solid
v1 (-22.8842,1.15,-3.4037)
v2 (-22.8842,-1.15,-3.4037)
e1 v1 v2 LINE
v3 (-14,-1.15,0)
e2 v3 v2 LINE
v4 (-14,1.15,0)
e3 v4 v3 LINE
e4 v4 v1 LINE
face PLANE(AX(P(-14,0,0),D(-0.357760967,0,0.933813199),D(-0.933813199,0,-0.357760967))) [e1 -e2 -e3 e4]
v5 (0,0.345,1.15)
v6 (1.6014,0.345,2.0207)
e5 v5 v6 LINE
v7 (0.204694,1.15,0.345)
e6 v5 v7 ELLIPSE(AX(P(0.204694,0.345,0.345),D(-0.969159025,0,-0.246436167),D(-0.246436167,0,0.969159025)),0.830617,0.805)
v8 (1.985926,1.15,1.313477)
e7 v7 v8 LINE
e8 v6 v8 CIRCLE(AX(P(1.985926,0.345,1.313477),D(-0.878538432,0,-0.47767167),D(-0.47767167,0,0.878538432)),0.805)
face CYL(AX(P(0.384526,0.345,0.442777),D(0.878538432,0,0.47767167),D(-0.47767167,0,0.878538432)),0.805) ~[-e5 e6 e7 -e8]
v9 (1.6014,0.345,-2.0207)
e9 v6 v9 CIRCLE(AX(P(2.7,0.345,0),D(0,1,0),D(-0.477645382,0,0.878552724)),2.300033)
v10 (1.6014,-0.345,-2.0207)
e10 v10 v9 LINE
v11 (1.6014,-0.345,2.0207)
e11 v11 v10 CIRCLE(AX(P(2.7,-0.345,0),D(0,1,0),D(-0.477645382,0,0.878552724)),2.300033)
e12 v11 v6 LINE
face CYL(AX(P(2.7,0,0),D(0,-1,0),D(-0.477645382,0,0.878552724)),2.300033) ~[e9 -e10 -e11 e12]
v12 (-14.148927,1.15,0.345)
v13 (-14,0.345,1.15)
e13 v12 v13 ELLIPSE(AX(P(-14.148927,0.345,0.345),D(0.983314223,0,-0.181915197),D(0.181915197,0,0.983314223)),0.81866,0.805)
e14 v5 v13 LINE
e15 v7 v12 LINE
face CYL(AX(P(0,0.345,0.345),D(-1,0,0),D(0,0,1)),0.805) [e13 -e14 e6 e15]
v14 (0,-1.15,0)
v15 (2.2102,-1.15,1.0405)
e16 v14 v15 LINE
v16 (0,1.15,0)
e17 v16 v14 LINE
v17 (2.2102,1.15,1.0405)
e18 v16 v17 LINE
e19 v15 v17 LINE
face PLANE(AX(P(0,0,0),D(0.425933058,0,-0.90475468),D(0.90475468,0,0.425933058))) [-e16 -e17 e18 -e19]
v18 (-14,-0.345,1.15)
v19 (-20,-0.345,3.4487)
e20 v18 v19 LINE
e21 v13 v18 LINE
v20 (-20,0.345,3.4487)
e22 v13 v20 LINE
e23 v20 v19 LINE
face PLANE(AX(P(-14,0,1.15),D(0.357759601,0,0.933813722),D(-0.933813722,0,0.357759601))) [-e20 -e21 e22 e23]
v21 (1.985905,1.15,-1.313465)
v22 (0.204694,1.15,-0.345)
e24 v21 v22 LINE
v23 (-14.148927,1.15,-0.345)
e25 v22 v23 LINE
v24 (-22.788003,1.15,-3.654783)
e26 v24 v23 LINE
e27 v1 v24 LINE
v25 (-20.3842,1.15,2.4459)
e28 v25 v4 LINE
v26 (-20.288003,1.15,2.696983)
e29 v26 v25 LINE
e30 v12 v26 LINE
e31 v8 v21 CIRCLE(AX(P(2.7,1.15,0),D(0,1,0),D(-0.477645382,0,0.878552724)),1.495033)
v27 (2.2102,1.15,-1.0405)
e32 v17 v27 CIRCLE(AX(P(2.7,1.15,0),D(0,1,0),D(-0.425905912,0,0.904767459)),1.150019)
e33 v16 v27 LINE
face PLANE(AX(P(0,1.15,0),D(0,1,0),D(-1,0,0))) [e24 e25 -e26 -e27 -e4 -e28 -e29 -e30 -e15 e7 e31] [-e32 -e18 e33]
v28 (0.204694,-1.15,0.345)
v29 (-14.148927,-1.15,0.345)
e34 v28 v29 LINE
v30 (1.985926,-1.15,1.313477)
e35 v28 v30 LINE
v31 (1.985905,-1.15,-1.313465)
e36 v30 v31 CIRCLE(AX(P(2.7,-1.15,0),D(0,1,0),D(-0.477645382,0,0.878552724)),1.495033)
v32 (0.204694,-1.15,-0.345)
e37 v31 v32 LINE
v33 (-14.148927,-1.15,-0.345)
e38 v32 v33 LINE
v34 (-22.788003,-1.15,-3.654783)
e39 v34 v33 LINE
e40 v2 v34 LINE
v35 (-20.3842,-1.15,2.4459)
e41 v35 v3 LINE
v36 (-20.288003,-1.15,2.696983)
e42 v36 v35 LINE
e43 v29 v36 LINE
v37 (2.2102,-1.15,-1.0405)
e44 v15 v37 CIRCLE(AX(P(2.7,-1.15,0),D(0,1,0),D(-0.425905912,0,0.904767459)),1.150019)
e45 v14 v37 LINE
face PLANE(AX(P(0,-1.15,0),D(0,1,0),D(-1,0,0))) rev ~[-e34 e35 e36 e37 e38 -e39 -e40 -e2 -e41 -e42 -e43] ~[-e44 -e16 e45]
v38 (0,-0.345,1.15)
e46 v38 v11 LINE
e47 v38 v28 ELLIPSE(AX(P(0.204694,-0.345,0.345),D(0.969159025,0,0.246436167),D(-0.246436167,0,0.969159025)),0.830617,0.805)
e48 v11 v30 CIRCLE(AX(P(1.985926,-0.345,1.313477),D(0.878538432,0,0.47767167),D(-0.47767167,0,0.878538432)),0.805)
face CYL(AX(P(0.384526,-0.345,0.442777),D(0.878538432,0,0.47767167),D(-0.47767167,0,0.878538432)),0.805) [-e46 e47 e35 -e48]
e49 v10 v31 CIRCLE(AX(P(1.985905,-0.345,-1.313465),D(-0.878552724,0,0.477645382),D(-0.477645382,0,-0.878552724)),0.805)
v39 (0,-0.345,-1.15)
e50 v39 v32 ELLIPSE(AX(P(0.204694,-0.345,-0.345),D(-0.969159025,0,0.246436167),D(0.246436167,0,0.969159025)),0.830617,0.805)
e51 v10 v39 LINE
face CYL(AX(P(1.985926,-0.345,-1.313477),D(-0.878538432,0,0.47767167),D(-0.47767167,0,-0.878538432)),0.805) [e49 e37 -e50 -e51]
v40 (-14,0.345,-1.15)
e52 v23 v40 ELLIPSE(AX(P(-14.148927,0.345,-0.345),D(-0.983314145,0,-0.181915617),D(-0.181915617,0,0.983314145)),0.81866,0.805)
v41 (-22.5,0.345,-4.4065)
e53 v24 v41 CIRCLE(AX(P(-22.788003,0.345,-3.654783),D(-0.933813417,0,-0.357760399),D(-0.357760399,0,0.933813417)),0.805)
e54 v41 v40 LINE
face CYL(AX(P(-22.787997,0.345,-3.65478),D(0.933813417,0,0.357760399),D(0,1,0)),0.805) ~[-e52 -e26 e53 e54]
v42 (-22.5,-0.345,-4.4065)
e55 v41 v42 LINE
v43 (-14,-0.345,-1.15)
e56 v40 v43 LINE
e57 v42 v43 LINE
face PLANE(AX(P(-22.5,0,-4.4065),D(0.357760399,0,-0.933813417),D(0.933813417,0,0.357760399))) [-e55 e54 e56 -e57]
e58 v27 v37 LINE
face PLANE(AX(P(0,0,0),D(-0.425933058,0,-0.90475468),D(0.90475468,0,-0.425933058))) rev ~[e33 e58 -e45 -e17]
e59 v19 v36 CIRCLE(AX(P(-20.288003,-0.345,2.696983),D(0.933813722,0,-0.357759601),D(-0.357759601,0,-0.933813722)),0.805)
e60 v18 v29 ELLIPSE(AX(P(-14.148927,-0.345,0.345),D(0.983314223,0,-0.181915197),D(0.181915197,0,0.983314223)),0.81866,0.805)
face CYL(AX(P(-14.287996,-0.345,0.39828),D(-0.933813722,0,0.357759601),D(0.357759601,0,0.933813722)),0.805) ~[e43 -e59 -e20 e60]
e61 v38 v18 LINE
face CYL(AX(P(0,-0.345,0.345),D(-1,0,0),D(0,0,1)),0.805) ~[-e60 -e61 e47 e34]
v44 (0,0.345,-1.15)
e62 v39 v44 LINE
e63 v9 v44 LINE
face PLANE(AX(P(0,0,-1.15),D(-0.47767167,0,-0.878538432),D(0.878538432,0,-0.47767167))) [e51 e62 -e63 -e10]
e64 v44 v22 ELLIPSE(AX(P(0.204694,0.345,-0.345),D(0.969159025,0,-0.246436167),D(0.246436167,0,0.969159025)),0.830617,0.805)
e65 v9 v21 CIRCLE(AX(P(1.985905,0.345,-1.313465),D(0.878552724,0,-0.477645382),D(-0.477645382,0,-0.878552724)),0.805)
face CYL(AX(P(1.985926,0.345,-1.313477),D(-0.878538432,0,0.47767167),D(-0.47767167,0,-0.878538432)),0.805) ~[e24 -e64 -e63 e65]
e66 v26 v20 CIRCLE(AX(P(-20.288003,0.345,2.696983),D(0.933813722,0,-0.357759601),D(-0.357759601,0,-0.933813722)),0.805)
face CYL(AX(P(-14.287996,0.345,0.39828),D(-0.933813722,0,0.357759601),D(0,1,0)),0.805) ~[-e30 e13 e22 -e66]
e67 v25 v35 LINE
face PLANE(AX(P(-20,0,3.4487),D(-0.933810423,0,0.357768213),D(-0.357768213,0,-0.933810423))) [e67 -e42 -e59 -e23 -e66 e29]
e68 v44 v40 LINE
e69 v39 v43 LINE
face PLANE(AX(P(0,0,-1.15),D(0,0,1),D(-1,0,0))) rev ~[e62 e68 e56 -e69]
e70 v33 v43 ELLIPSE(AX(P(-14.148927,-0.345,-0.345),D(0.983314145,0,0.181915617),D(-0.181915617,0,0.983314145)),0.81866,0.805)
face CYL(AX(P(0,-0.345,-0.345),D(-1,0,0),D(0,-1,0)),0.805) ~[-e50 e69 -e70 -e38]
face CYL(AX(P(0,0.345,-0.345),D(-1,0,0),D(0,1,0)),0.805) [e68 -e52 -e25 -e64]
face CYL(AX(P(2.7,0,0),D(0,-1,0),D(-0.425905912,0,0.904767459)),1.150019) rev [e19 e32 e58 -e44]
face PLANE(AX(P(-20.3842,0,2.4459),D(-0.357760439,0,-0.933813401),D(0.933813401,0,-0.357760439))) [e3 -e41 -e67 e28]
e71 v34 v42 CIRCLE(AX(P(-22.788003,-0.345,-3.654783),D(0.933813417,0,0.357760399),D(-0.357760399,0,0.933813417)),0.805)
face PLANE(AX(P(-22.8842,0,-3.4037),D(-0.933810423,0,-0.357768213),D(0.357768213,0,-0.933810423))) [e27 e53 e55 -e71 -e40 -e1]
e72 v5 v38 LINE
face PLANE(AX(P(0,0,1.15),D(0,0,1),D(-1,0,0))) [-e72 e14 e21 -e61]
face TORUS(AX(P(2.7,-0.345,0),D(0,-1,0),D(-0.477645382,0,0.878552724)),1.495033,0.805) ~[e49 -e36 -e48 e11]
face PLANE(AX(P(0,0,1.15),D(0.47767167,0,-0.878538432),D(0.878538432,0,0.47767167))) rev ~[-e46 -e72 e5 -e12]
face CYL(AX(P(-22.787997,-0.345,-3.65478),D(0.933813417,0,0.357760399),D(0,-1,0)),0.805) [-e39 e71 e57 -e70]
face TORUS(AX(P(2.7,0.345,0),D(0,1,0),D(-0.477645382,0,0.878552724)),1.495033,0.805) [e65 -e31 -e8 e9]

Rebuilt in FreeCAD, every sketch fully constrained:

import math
import FreeCAD as App
import Part
import Sketcher
from FreeCAD import Vector
Q = App.Units.Quantity


def edges_at(feature, points):
    """Names of the edges that pass closest to the given points."""
    edges = feature.Shape.Edges
    near = lambda p: min(range(len(edges)), key=lambda i: edges[i].distToShape(Part.Vertex(*p))[0])
    return sorted({f"Edge{near(p) + 1}" for p in points})

doc = App.newDocument("Part")
body = doc.addObject("PartDesign::Body", "Body")

# Sketch on XZ plane
sketch1 = body.newObject("Sketcher::SketchObject", "Sketch")
sketch1.AttachmentSupport = (doc.getObject("XZ_Plane"), [""])
sketch1.MapMode = "FlatFace"
sketch1.addGeometry([
    Part.LineSegment(Vector(0, 1.1, 0), Vector(1.6, 2, 0)),  # 0
    Part.ArcOfCircle(Part.Circle(Vector(2.7, 0, 0), Vector(0, 0, 1), 2.3), math.radians(-119), math.radians(119)),  # 1
    Part.LineSegment(Vector(1.6, -2, 0), Vector(0, -1.1, 0)),  # 2
    Part.LineSegment(Vector(0, -1.1, 0), Vector(-14, -1.1, 0)),  # 3
    Part.LineSegment(Vector(-14, -1.1, 0), Vector(-22.5, -4.4, 0)),  # 4
    Part.LineSegment(Vector(-22.5, -4.4, 0), Vector(-22.9, -3.4, 0)),  # 5
    Part.LineSegment(Vector(-22.9, -3.4, 0), Vector(-14, 0, 0)),  # 6
    Part.LineSegment(Vector(-14, 0, 0), Vector(-20.4, 2.4, 0)),  # 7
    Part.LineSegment(Vector(-20.4, 2.4, 0), Vector(-20, 3.4, 0)),  # 8
    Part.LineSegment(Vector(-20, 3.4, 0), Vector(-14, 1.1, 0)),  # 9
    Part.LineSegment(Vector(-14, 1.1, 0), Vector(0, 1.1, 0)),  # 10
    Part.ArcOfCircle(Part.Circle(Vector(2.7, 0, 0), Vector(0, 0, 1), 1.2), math.radians(-115), math.radians(115)),  # 11
    Part.LineSegment(Vector(2.2, 1, 0), Vector(0, 0, 0)),  # 12
    Part.LineSegment(Vector(0, 0, 0), Vector(2.2, -1, 0)),  # 13
], False)
sketch1.addConstraint([
    Sketcher.Constraint("Tangent", 0, 2, 1, 2),
    Sketcher.Constraint("Tangent", 1, 1, 2, 1),
    Sketcher.Constraint("Coincident", 2, 2, 3, 1),
    Sketcher.Constraint("Coincident", 3, 2, 4, 1),
    Sketcher.Constraint("Coincident", 4, 2, 5, 1),
    Sketcher.Constraint("Coincident", 5, 2, 6, 1),
    Sketcher.Constraint("Coincident", 6, 2, 7, 1),
    Sketcher.Constraint("Coincident", 7, 2, 8, 1),
    Sketcher.Constraint("Coincident", 8, 2, 9, 1),
    Sketcher.Constraint("Coincident", 9, 2, 10, 1),
    Sketcher.Constraint("Coincident", 10, 2, 0, 1),
    Sketcher.Constraint("Tangent", 11, 2, 12, 1),
    Sketcher.Constraint("Coincident", 12, 2, 13, 1),
    Sketcher.Constraint("Tangent", 13, 2, 11, 1),
    Sketcher.Constraint("Horizontal", 3),
    Sketcher.Constraint("Horizontal", 10),
    Sketcher.Constraint("Coincident", 12, 2, -1, 1),
    Sketcher.Constraint("Coincident", 11, 3, 1, 3),
    Sketcher.Constraint("Symmetric", 2, 2, 10, 2, -1, 1),
    Sketcher.Constraint("Symmetric", 0, 2, 1, 1, -1),
    Sketcher.Constraint("PointOnObject", 6, 2, -1),
    Sketcher.Constraint("Perpendicular", 4, 5),
    Sketcher.Constraint("Perpendicular", 5, 6),
    Sketcher.Constraint("Perpendicular", 7, 8),
    Sketcher.Constraint("Perpendicular", 8, 9),
    Sketcher.Constraint("Vertical", 3, 2, 6, 2),
    Sketcher.Constraint("Vertical", 6, 2, 9, 2),
    Sketcher.Constraint("Equal", 5, 8),
    Sketcher.Constraint("Radius", 1, Q("2.3 mm")),
    Sketcher.Constraint("DistanceX", 3, 2, 3, 1, Q("14 mm")),
    Sketcher.Constraint("Radius", 11, Q("1.15 mm")),
    Sketcher.Constraint("DistanceX", 8, 2, -1, 1, Q("20 mm")),
    Sketcher.Constraint("DistanceX", -1, 1, 1, 3, Q("2.7 mm")),
    Sketcher.Constraint("DistanceX", 5, 2, 7, 2, Q("2.5 mm")),
    Sketcher.Constraint("DistanceY", 3, 2, 9, 2, Q("2.3 mm")),
    Sketcher.Constraint("Distance", 6, Q("9.514 mm")),
])
pad1 = body.newObject("PartDesign::Pad", "Pad")
pad1.Profile = sketch1
pad1.Length = 2.3
pad1.Midplane = True
doc.recompute()

fillet = body.newObject("PartDesign::Fillet", "Fillet")
fillet.Base = (pad1, edges_at(pad1, [
    (-17, -1.15, 2.299),
    (-17, 1.15, 2.299),
    (-7, -1.15, 1.15),
    (-7, 1.15, 1.15),
    (5, -1.15, 0),
    (0.801, -1.15, -1.585),
    (0.801, -1.15, 1.585),
    (5, 1.15, 0),
    (0.801, 1.15, 1.585),
    (0.801, 1.15, -1.585),
    (-7, -1.15, -1.15),
    (-18.25, -1.15, -2.778),
    (-7, 1.15, -1.15),
    (-18.25, 1.15, -2.778),
]))
fillet.Radius = 0.805

doc.recompute()
